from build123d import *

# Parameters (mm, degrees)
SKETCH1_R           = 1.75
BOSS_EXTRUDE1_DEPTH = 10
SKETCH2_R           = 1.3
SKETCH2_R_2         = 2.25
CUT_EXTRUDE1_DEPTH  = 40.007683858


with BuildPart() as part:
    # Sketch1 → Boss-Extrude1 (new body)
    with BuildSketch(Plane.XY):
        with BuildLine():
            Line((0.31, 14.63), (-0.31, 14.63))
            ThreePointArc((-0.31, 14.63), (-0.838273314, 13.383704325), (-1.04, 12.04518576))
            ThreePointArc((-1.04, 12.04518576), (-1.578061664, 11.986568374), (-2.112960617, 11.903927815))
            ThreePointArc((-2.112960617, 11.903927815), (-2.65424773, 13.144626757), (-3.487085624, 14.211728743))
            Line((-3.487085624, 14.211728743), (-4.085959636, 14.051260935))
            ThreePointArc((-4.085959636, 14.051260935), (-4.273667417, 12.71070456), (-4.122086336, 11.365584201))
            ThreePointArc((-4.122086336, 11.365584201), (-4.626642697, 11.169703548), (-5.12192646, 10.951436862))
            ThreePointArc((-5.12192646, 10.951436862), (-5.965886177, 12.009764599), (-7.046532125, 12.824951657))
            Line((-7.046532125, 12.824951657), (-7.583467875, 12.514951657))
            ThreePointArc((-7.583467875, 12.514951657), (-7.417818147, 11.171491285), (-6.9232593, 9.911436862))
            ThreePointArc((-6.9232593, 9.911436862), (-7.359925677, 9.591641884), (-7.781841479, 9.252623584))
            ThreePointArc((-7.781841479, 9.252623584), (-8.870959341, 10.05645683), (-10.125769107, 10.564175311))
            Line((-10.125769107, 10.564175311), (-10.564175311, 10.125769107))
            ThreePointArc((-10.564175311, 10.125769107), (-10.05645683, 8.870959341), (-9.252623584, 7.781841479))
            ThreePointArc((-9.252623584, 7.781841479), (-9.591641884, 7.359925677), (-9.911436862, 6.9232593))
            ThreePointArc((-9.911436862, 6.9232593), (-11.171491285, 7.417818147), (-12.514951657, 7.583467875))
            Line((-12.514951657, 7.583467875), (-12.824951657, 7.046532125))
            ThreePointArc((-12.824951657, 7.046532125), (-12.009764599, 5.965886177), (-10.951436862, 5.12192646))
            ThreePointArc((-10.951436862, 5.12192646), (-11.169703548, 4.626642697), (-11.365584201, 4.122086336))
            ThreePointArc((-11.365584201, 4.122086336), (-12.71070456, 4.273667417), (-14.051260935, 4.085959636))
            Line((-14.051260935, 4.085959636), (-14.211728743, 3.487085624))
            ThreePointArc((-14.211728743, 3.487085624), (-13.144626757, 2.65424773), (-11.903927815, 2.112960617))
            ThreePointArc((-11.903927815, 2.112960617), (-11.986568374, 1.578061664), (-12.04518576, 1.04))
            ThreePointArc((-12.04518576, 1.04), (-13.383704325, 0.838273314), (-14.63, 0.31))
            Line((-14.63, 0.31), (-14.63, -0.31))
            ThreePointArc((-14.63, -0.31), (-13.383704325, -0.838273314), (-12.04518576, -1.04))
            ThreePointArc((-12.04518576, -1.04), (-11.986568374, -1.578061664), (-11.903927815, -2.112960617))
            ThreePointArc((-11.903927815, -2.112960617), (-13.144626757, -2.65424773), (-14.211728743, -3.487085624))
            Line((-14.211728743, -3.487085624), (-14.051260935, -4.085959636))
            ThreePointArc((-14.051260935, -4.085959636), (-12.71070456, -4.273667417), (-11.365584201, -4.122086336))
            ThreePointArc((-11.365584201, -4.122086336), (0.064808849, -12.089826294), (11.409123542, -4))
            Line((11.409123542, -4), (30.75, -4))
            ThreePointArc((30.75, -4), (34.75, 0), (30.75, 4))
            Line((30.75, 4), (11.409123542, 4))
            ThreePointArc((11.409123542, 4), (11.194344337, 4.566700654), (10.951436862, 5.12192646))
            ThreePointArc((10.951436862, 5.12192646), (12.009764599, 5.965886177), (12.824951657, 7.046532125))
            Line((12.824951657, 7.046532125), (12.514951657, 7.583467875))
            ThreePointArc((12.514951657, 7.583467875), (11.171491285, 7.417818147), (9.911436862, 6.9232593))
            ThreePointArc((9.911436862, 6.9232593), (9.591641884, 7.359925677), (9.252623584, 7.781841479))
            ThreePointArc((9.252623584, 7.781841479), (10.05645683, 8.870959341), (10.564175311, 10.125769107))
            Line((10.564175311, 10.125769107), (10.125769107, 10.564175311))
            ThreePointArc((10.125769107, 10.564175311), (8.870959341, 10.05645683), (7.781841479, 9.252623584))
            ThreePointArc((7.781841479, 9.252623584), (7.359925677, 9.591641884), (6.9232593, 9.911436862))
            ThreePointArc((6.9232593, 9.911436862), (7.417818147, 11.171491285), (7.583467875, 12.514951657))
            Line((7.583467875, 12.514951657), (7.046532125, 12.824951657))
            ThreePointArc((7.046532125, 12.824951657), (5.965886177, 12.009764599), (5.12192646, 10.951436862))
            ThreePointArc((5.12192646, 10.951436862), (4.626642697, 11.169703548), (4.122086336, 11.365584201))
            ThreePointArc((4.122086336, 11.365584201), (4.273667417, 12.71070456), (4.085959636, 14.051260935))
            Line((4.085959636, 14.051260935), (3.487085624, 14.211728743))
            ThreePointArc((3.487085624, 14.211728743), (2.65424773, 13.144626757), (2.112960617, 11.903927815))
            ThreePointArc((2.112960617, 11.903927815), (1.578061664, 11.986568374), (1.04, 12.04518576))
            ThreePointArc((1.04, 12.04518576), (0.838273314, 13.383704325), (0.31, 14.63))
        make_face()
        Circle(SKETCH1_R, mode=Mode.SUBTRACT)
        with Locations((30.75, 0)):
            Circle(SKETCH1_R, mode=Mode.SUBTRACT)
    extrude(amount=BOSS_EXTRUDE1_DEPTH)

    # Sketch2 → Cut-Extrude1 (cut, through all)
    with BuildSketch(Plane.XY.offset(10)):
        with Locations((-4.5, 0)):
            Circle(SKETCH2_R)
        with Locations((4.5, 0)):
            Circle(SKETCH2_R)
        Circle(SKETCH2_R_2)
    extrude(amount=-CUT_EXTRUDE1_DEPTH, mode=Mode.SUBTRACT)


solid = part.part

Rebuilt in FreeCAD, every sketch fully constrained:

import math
import FreeCAD as App
import Part
import Sketcher
Q = App.Units.Quantity

doc = App.newDocument("Part")
body = doc.addObject("PartDesign::Body", "Body")

# Sketch on XY plane
sketch1 = body.newObject("Sketcher::SketchObject", "Sketch")
sketch1.AttachmentSupport = (doc.getObject("XY_Plane"), [""])
sketch1.MapMode = "FlatFace"
sketch1.addGeometry([
    Part.LineSegment(App.Vector(0.31, 14.63, 0), App.Vector(-0.31, 14.63, 0)),  # 0
    Part.ArcOfCircle(Part.Circle(App.Vector(4.358456, 11.916051, 0), App.Vector(0, 0, 1), 5.4), math.radians(149.828948), math.radians(178.629703)),  # 1
    Part.ArcOfCircle(Part.Circle(App.Vector(0, 0, 0), App.Vector(0, 0, 1), 12.09), math.radians(94.934768), math.radians(100.065232)),  # 2
    Part.ArcOfCircle(Part.Circle(App.Vector(-7.294046, 10.38197, 0), App.Vector(0, 0, 1), 5.4), math.radians(16.370297), math.radians(45.171052)),  # 3
    Part.LineSegment(App.Vector(-3.487086, 14.211729, 0), App.Vector(-4.08596, 14.051261, 0)),  # 4
    Part.ArcOfCircle(Part.Circle(App.Vector(1.125844, 12.638072, 0), App.Vector(0, 0, 1), 5.4), math.radians(164.828948), math.radians(193.629703)),  # 5
    Part.ArcOfCircle(Part.Circle(App.Vector(0, 0, 0), App.Vector(0, 0, 1), 12.09), math.radians(109.934768), math.radians(115.065232)),  # 6
    Part.ArcOfCircle(Part.Circle(App.Vector(-9.732559, 8.140375, 0), App.Vector(0, 0, 1), 5.4), math.radians(31.370297), math.radians(60.171052)),  # 7
    Part.LineSegment(App.Vector(-7.046532, 12.824952, 0), App.Vector(-7.583468, 12.514952, 0)),  # 8
    Part.ArcOfCircle(Part.Circle(App.Vector(-2.183492, 12.49883, 0), App.Vector(0, 0, 1), 5.4), math.radians(179.828948), math.radians(208.629703)),  # 9
    Part.ArcOfCircle(Part.Circle(App.Vector(0, 0, 0), App.Vector(0, 0, 1), 12.09), math.radians(124.934768), math.radians(130.065232)),  # 10
    Part.ArcOfCircle(Part.Circle(App.Vector(-11.507814, 5.344027, 0), App.Vector(0, 0, 1), 5.4), math.radians(46.370297), math.radians(75.171052)),  # 11
    Part.LineSegment(App.Vector(-10.125769, 10.564175, 0), App.Vector(-10.564175, 10.125769, 0)),  # 12
    Part.ArcOfCircle(Part.Circle(App.Vector(-5.344027, 11.507814, 0), App.Vector(0, 0, 1), 5.4), math.radians(-165.171052), math.radians(-136.370297)),  # 13
    Part.ArcOfCircle(Part.Circle(App.Vector(0, 0, 0), App.Vector(0, 0, 1), 12.09), math.radians(139.934768), math.radians(145.065232)),  # 14
    Part.ArcOfCircle(Part.Circle(App.Vector(-12.49883, 2.183492, 0), App.Vector(0, 0, 1), 5.4), math.radians(61.370297), math.radians(90.171052)),  # 15
    Part.LineSegment(App.Vector(-12.514952, 7.583468, 0), App.Vector(-12.824952, 7.046532, 0)),  # 16
    Part.ArcOfCircle(Part.Circle(App.Vector(-8.140375, 9.732559, 0), App.Vector(0, 0, 1), 5.4), math.radians(-150.171052), math.radians(-121.370297)),  # 17
    Part.ArcOfCircle(Part.Circle(App.Vector(0, 0, 0), App.Vector(0, 0, 1), 12.09), math.radians(154.934768), math.radians(160.065232)),  # 18
    Part.ArcOfCircle(Part.Circle(App.Vector(-12.638072, -1.125844, 0), App.Vector(0, 0, 1), 5.4), math.radians(76.370297), math.radians(105.171052)),  # 19
    Part.LineSegment(App.Vector(-14.051261, 4.08596, 0), App.Vector(-14.211729, 3.487086, 0)),  # 20
    Part.ArcOfCircle(Part.Circle(App.Vector(-10.38197, 7.294046, 0), App.Vector(0, 0, 1), 5.4), math.radians(-135.171052), math.radians(-106.370297)),  # 21
    Part.ArcOfCircle(Part.Circle(App.Vector(0, 0, 0), App.Vector(0, 0, 1), 12.09), math.radians(169.934768), math.radians(175.065232)),  # 22
    Part.ArcOfCircle(Part.Circle(App.Vector(-11.916051, -4.358456, 0), App.Vector(0, 0, 1), 5.4), math.radians(91.370297), math.radians(120.171052)),  # 23
    Part.LineSegment(App.Vector(-14.63, 0.31, 0), App.Vector(-14.63, -0.31, 0)),  # 24
    Part.ArcOfCircle(Part.Circle(App.Vector(-11.916051, 4.358456, 0), App.Vector(0, 0, 1), 5.4), math.radians(-120.171052), math.radians(-91.370297)),  # 25
    Part.ArcOfCircle(Part.Circle(App.Vector(0, 0, 0), App.Vector(0, 0, 1), 12.09), math.radians(-175.065232), math.radians(-169.934768)),  # 26
    Part.ArcOfCircle(Part.Circle(App.Vector(-10.38197, -7.294046, 0), App.Vector(0, 0, 1), 5.4), math.radians(106.370297), math.radians(135.171052)),  # 27
    Part.LineSegment(App.Vector(-14.211729, -3.487086, 0), App.Vector(-14.051261, -4.08596, 0)),  # 28
    Part.ArcOfCircle(Part.Circle(App.Vector(-12.638072, 1.125844, 0), App.Vector(0, 0, 1), 5.4), math.radians(-105.171052), math.radians(-76.370297)),  # 29
    Part.ArcOfCircle(Part.Circle(App.Vector(0, 0, 0), App.Vector(0, 0, 1), 12.09), math.radians(-160.065232), math.radians(-19.320493)),  # 30
    Part.LineSegment(App.Vector(11.409124, -4, 0), App.Vector(30.75, -4, 0)),  # 31
    Part.ArcOfCircle(Part.Circle(App.Vector(30.75, 0, 0), App.Vector(0, 0, 1), 4), math.radians(-90), math.radians(90)),  # 32
    Part.LineSegment(App.Vector(30.75, 4, 0), App.Vector(11.409124, 4, 0)),  # 33
    Part.ArcOfCircle(Part.Circle(App.Vector(0, 0, 0), App.Vector(0, 0, 1), 12.09), math.radians(19.320493), math.radians(25.065232)),  # 34
    Part.ArcOfCircle(Part.Circle(App.Vector(8.140375, 9.732559, 0), App.Vector(0, 0, 1), 5.4), math.radians(-58.629703), math.radians(-29.828948)),  # 35
    Part.LineSegment(App.Vector(12.824952, 7.046532, 0), App.Vector(12.514952, 7.583468, 0)),  # 36
    Part.ArcOfCircle(Part.Circle(App.Vector(12.49883, 2.183492, 0), App.Vector(0, 0, 1), 5.4), math.radians(89.828948), math.radians(118.629703)),  # 37
    Part.ArcOfCircle(Part.Circle(App.Vector(0, 0, 0), App.Vector(0, 0, 1), 12.09), math.radians(34.934768), math.radians(40.065232)),  # 38
    Part.ArcOfCircle(Part.Circle(App.Vector(5.344027, 11.507814, 0), App.Vector(0, 0, 1), 5.4), math.radians(-43.629703), math.radians(-14.828948)),  # 39
    Part.LineSegment(App.Vector(10.564175, 10.125769, 0), App.Vector(10.125769, 10.564175, 0)),  # 40
    Part.ArcOfCircle(Part.Circle(App.Vector(11.507814, 5.344027, 0), App.Vector(0, 0, 1), 5.4), math.radians(104.828948), math.radians(133.629703)),  # 41
    Part.ArcOfCircle(Part.Circle(App.Vector(0, 0, 0), App.Vector(0, 0, 1), 12.09), math.radians(49.934768), math.radians(55.065232)),  # 42
    Part.ArcOfCircle(Part.Circle(App.Vector(2.183492, 12.49883, 0), App.Vector(0, 0, 1), 5.4), math.radians(-28.629703), math.radians(0.171052)),  # 43
    Part.LineSegment(App.Vector(7.583468, 12.514952, 0), App.Vector(7.046532, 12.824952, 0)),  # 44
    Part.ArcOfCircle(Part.Circle(App.Vector(9.732559, 8.140375, 0), App.Vector(0, 0, 1), 5.4), math.radians(119.828948), math.radians(148.629703)),  # 45
    Part.ArcOfCircle(Part.Circle(App.Vector(0, 0, 0), App.Vector(0, 0, 1), 12.09), math.radians(64.934768), math.radians(70.065232)),  # 46
    Part.ArcOfCircle(Part.Circle(App.Vector(-1.125844, 12.638072, 0), App.Vector(0, 0, 1), 5.4), math.radians(-13.629703), math.radians(15.171052)),  # 47
    Part.LineSegment(App.Vector(4.08596, 14.051261, 0), App.Vector(3.487086, 14.211729, 0)),  # 48
    Part.ArcOfCircle(Part.Circle(App.Vector(7.294046, 10.38197, 0), App.Vector(0, 0, 1), 5.4), math.radians(134.828948), math.radians(163.629703)),  # 49
    Part.ArcOfCircle(Part.Circle(App.Vector(0, 0, 0), App.Vector(0, 0, 1), 12.09), math.radians(79.934768), math.radians(85.065232)),  # 50
    Part.ArcOfCircle(Part.Circle(App.Vector(-4.358456, 11.916051, 0), App.Vector(0, 0, 1), 5.4), math.radians(1.370297), math.radians(30.171052)),  # 51
    Part.Circle(App.Vector(0, 0, 0), App.Vector(0, 0, 1), 1.75),  # 52
    Part.Circle(App.Vector(30.75, 0, 0), App.Vector(0, 0, 1), 1.75),  # 53
], False)
sketch1.addConstraint([
    Sketcher.Constraint("Coincident", 0, 2, 1, 1),
    Sketcher.Constraint("Coincident", 1, 2, 2, 1),
    Sketcher.Constraint("Coincident", 2, 2, 3, 1),
    Sketcher.Constraint("Coincident", 3, 2, 4, 1),
    Sketcher.Constraint("Coincident", 4, 2, 5, 1),
    Sketcher.Constraint("Coincident", 5, 2, 6, 1),
    Sketcher.Constraint("Coincident", 6, 2, 7, 1),
    Sketcher.Constraint("Coincident", 7, 2, 8, 1),
    Sketcher.Constraint("Coincident", 8, 2, 9, 1),
    Sketcher.Constraint("Coincident", 9, 2, 10, 1),
    Sketcher.Constraint("Coincident", 10, 2, 11, 1),
    Sketcher.Constraint("Coincident", 11, 2, 12, 1),
    Sketcher.Constraint("Coincident", 12, 2, 13, 1),
    Sketcher.Constraint("Coincident", 13, 2, 14, 1),
    Sketcher.Constraint("Coincident", 14, 2, 15, 1),
    Sketcher.Constraint("Coincident", 15, 2, 16, 1),
    Sketcher.Constraint("Coincident", 16, 2, 17, 1),
    Sketcher.Constraint("Coincident", 17, 2, 18, 1),
    Sketcher.Constraint("Coincident", 18, 2, 19, 1),
    Sketcher.Constraint("Coincident", 19, 2, 20, 1),
    Sketcher.Constraint("Coincident", 20, 2, 21, 1),
    Sketcher.Constraint("Coincident", 21, 2, 22, 1),
    Sketcher.Constraint("Coincident", 22, 2, 23, 1),
    Sketcher.Constraint("Coincident", 23, 2, 24, 1),
    Sketcher.Constraint("Coincident", 24, 2, 25, 1),
    Sketcher.Constraint("Coincident", 25, 2, 26, 1),
    Sketcher.Constraint("Coincident", 26, 2, 27, 1),
    Sketcher.Constraint("Coincident", 27, 2, 28, 1),
    Sketcher.Constraint("Coincident", 28, 2, 29, 1),
    Sketcher.Constraint("Coincident", 29, 2, 30, 1),
    Sketcher.Constraint("Coincident", 30, 2, 31, 1),
    Sketcher.Constraint("Tangent", 31, 2, 32, 1),
    Sketcher.Constraint("Tangent", 32, 2, 33, 1),
    Sketcher.Constraint("Coincident", 33, 2, 34, 1),
    Sketcher.Constraint("Coincident", 34, 2, 35, 1),
    Sketcher.Constraint("Coincident", 35, 2, 36, 1),
    Sketcher.Constraint("Coincident", 36, 2, 37, 1),
    Sketcher.Constraint("Coincident", 37, 2, 38, 1),
    Sketcher.Constraint("Coincident", 38, 2, 39, 1),
    Sketcher.Constraint("Coincident", 39, 2, 40, 1),
    Sketcher.Constraint("Coincident", 40, 2, 41, 1),
    Sketcher.Constraint("Coincident", 41, 2, 42, 1),
    Sketcher.Constraint("Coincident", 42, 2, 43, 1),
    Sketcher.Constraint("Coincident", 43, 2, 44, 1),
    Sketcher.Constraint("Coincident", 44, 2, 45, 1),
    Sketcher.Constraint("Coincident", 45, 2, 46, 1),
    Sketcher.Constraint("Coincident", 46, 2, 47, 1),
    Sketcher.Constraint("Coincident", 47, 2, 48, 1),
    Sketcher.Constraint("Coincident", 48, 2, 49, 1),
    Sketcher.Constraint("Coincident", 49, 2, 50, 1),
    Sketcher.Constraint("Coincident", 50, 2, 51, 1),
    Sketcher.Constraint("Coincident", 51, 2, 0, 1),
    Sketcher.Constraint("Horizontal", 0),
    Sketcher.Constraint("Vertical", 24),
    Sketcher.Constraint("Horizontal", 31),
    Sketcher.Constraint("Horizontal", 33),
    Sketcher.Constraint("Coincident", 2, 3, -1, 1),
    Sketcher.Constraint("Coincident", 6, 3, -1, 1),
    Sketcher.Constraint("Coincident", 10, 3, -1, 1),
    Sketcher.Constraint("Coincident", 14, 3, -1, 1),
    Sketcher.Constraint("Coincident", 18, 3, -1, 1),
    Sketcher.Constraint("Coincident", 22, 3, -1, 1),
    Sketcher.Constraint("Coincident", 26, 3, -1, 1),
    Sketcher.Constraint("Coincident", 30, 3, -1, 1),
    Sketcher.Constraint("Coincident", 34, 3, -1, 1),
    Sketcher.Constraint("Coincident", 38, 3, -1, 1),
    Sketcher.Constraint("Coincident", 42, 3, -1, 1),
    Sketcher.Constraint("Coincident", 46, 3, -1, 1),
    Sketcher.Constraint("Coincident", 50, 3, -1, 1),
    Sketcher.Constraint("Coincident", 52, 3, -1, 1),
    Sketcher.Constraint("Coincident", 53, 3, 32, 3),
    Sketcher.Constraint("Equal", 1, 3),
    Sketcher.Constraint("Equal", 3, 5),
    Sketcher.Constraint("Equal", 2, 6),
    Sketcher.Constraint("Equal", 5, 7),
    Sketcher.Constraint("Equal", 7, 9),
    Sketcher.Constraint("Equal", 6, 10),
    Sketcher.Constraint("Equal", 9, 11),
    Sketcher.Constraint("Equal", 11, 13),
    Sketcher.Constraint("Equal", 10, 14),
    Sketcher.Constraint("Equal", 13, 15),
    Sketcher.Constraint("Equal", 15, 17),
    Sketcher.Constraint("Equal", 14, 18),
    Sketcher.Constraint("Equal", 17, 19),
    Sketcher.Constraint("Equal", 19, 21),
    Sketcher.Constraint("Equal", 18, 22),
    Sketcher.Constraint("Equal", 21, 23),
    Sketcher.Constraint("Equal", 23, 25),
    Sketcher.Constraint("Equal", 22, 26),
    Sketcher.Constraint("Equal", 25, 27),
    Sketcher.Constraint("Equal", 27, 29),
    Sketcher.Constraint("Equal", 26, 30),
    Sketcher.Constraint("Equal", 30, 34),
    Sketcher.Constraint("Equal", 29, 35),
    Sketcher.Constraint("Equal", 35, 37),
    Sketcher.Constraint("Equal", 34, 38),
    Sketcher.Constraint("Equal", 37, 39),
    Sketcher.Constraint("Equal", 39, 41),
    Sketcher.Constraint("Equal", 38, 42),
    Sketcher.Constraint("Equal", 41, 43),
    Sketcher.Constraint("Equal", 43, 45),
    Sketcher.Constraint("Equal", 42, 46),
    Sketcher.Constraint("Equal", 45, 47),
    Sketcher.Constraint("Equal", 47, 49),
    Sketcher.Constraint("Equal", 46, 50),
    Sketcher.Constraint("Equal", 49, 51),
    Sketcher.Constraint("Equal", 52, 53),
    Sketcher.Constraint("Symmetric", 17, 3, 35, 3, -2),
    Sketcher.Constraint("Symmetric", 15, 3, 37, 3, -2),
    Sketcher.Constraint("Symmetric", 13, 3, 39, 3, -2),
    Sketcher.Constraint("Symmetric", 11, 3, 41, 3, -2),
    Sketcher.Constraint("Symmetric", 9, 3, 43, 3, -2),
    Sketcher.Constraint("Symmetric", 7, 3, 45, 3, -2),
    Sketcher.Constraint("Symmetric", 5, 3, 47, 3, -2),
    Sketcher.Constraint("Symmetric", 3, 3, 49, 3, -2),
    Sketcher.Constraint("Symmetric", 1, 3, 51, 3, -2),
    Sketcher.Constraint("Symmetric", 23, 3, 25, 3, -1),
    Sketcher.Constraint("Symmetric", 21, 3, 27, 3, -1),
    Sketcher.Constraint("Symmetric", 19, 3, 29, 3, -1),
    Sketcher.Constraint("PointOnObject", 32, 3, -1),
    Sketcher.Constraint("Perpendicular", 4, 28),
    Sketcher.Constraint("Perpendicular", 8, 36),
    Sketcher.Constraint("Perpendicular", 12, 40),
    Sketcher.Constraint("Perpendicular", 16, 44),
    Sketcher.Constraint("Perpendicular", 20, 48),
    Sketcher.Constraint("Horizontal", 16, 2, 35, 2),
    Sketcher.Constraint("Horizontal", 12, 2, 39, 2),
    Sketcher.Constraint("Horizontal", 11, 2, 40, 2),
    Sketcher.Constraint("Horizontal", 8, 2, 43, 2),
    Sketcher.Constraint("Horizontal", 7, 2, 44, 2),
    Sketcher.Constraint("Horizontal", 4, 2, 47, 2),
    Sketcher.Constraint("Horizontal", 3, 2, 48, 2),
    Sketcher.Constraint("Vertical", 20, 2, 27, 2),
    Sketcher.Constraint("Equal", 0, 24),
    Sketcher.Constraint("Equal", 4, 8),
    Sketcher.Constraint("Equal", 8, 12),
    Sketcher.Constraint("Equal", 12, 16),
    Sketcher.Constraint("Equal", 16, 20),
    Sketcher.Constraint("Radius", 32, 4.0),
    Sketcher.Constraint("Diameter", 52, 3.5),
    Sketcher.Constraint("Radius", 1, 5.4),
    Sketcher.Constraint("Angle", 4, Q("-165 deg")),
    Sketcher.Constraint("Angle", 8, Q("-150 deg")),
    Sketcher.Constraint("Radius", 2, 12.09),
    Sketcher.Constraint("DistanceX", 0, 2, 0, 1, 0.62),
    Sketcher.Constraint("Distance", 4, 0.62),
    Sketcher.Constraint("DistanceX", -1, 1, 32, 3, 30.75),
    Sketcher.Constraint("DistanceY", -1, 1, 0, 2, 14.63),
    Sketcher.Constraint("DistanceX", 1, 2, -1, 1, 1.04),
    Sketcher.Constraint("DistanceY", -1, 1, 22, 2, 1.04),
    Sketcher.Constraint("DistanceX", 23, 2, -1, 1, 14.63),
    Sketcher.Constraint("DistanceY", -1, 1, 3, 3, 10.38197),
    Sketcher.Constraint("DistanceX", 7, 3, -1, 1, 9.732559),
    Sketcher.Constraint("DistanceX", 9, 3, -1, 1, 2.183492),
    Sketcher.Constraint("DistanceY", -1, 1, 9, 3, 12.49883),
    Sketcher.Constraint("DistanceX", 15, 3, -1, 1, 12.49883),
    Sketcher.Constraint("DistanceY", -1, 1, 15, 3, 2.183492),
    Sketcher.Constraint("DistanceY", -1, 1, 17, 3, 9.732559),
    Sketcher.Constraint("DistanceX", 21, 3, -1, 1, 10.38197),
    Sketcher.Constraint("DistanceX", 2, 2, -1, 1, 2.112961),
    Sketcher.Constraint("DistanceY", -1, 1, 3, 2, 14.211729),
    Sketcher.Constraint("DistanceY", -1, 1, 7, 2, 12.824952),
    Sketcher.Constraint("DistanceX", 10, 2, -1, 1, 7.781841),
    Sketcher.Constraint("DistanceX", 11, 2, -1, 1, 10.125769),
    Sketcher.Constraint("DistanceY", -1, 1, 12, 2, 10.125769),
    Sketcher.Constraint("DistanceY", -1, 1, 13, 2, 7.781841),
    Sketcher.Constraint("DistanceX", 15, 2, -1, 1, 12.514952),
    Sketcher.Constraint("DistanceX", 19, 2, -1, 1, 14.051261),
    Sketcher.Constraint("DistanceY", -1, 1, 19, 2, 4.08596),
    Sketcher.Constraint("DistanceX", -1, 1, 5, 3, 1.125844),
    Sketcher.Constraint("DistanceX", 19, 3, -1, 1, 12.638072),
])
pad1 = body.newObject("PartDesign::Pad", "Pad")
pad1.Profile = sketch1
pad1.Length = 10

# Sketch on XY plane
sketch2 = body.newObject("Sketcher::SketchObject", "Sketch001")
sketch2.AttachmentSupport = (doc.getObject("XY_Plane"), [""])
sketch2.MapMode = "FlatFace"
sketch2.AttachmentOffset = App.Placement(App.Vector(0, 0, 10), App.Rotation())
sketch2.addGeometry([
    Part.Circle(App.Vector(-4.5, 0, 0), App.Vector(0, 0, 1), 1.3),
    Part.Circle(App.Vector(4.5, 0, 0), App.Vector(0, 0, 1), 1.3),
    Part.Circle(App.Vector(0, 0, 0), App.Vector(0, 0, 1), 2.25),
], False)
sketch2.addConstraint([
    Sketcher.Constraint("Coincident", 2, 3, -1, 1),
    Sketcher.Constraint("Equal", 0, 1),
    Sketcher.Constraint("Symmetric", 0, 3, 1, 3, -1, 1),
    Sketcher.Constraint("PointOnObject", 0, 3, -1),
    Sketcher.Constraint("Diameter", 0, 2.6),
    Sketcher.Constraint("Diameter", 2, 4.5),
    Sketcher.Constraint("DistanceX", 0, 3, 1, 3, 9.0),
])
pocket1 = body.newObject("PartDesign::Pocket", "Pocket")
pocket1.Profile = sketch2
pocket1.Type = "ThroughAll"

doc.recompute()
